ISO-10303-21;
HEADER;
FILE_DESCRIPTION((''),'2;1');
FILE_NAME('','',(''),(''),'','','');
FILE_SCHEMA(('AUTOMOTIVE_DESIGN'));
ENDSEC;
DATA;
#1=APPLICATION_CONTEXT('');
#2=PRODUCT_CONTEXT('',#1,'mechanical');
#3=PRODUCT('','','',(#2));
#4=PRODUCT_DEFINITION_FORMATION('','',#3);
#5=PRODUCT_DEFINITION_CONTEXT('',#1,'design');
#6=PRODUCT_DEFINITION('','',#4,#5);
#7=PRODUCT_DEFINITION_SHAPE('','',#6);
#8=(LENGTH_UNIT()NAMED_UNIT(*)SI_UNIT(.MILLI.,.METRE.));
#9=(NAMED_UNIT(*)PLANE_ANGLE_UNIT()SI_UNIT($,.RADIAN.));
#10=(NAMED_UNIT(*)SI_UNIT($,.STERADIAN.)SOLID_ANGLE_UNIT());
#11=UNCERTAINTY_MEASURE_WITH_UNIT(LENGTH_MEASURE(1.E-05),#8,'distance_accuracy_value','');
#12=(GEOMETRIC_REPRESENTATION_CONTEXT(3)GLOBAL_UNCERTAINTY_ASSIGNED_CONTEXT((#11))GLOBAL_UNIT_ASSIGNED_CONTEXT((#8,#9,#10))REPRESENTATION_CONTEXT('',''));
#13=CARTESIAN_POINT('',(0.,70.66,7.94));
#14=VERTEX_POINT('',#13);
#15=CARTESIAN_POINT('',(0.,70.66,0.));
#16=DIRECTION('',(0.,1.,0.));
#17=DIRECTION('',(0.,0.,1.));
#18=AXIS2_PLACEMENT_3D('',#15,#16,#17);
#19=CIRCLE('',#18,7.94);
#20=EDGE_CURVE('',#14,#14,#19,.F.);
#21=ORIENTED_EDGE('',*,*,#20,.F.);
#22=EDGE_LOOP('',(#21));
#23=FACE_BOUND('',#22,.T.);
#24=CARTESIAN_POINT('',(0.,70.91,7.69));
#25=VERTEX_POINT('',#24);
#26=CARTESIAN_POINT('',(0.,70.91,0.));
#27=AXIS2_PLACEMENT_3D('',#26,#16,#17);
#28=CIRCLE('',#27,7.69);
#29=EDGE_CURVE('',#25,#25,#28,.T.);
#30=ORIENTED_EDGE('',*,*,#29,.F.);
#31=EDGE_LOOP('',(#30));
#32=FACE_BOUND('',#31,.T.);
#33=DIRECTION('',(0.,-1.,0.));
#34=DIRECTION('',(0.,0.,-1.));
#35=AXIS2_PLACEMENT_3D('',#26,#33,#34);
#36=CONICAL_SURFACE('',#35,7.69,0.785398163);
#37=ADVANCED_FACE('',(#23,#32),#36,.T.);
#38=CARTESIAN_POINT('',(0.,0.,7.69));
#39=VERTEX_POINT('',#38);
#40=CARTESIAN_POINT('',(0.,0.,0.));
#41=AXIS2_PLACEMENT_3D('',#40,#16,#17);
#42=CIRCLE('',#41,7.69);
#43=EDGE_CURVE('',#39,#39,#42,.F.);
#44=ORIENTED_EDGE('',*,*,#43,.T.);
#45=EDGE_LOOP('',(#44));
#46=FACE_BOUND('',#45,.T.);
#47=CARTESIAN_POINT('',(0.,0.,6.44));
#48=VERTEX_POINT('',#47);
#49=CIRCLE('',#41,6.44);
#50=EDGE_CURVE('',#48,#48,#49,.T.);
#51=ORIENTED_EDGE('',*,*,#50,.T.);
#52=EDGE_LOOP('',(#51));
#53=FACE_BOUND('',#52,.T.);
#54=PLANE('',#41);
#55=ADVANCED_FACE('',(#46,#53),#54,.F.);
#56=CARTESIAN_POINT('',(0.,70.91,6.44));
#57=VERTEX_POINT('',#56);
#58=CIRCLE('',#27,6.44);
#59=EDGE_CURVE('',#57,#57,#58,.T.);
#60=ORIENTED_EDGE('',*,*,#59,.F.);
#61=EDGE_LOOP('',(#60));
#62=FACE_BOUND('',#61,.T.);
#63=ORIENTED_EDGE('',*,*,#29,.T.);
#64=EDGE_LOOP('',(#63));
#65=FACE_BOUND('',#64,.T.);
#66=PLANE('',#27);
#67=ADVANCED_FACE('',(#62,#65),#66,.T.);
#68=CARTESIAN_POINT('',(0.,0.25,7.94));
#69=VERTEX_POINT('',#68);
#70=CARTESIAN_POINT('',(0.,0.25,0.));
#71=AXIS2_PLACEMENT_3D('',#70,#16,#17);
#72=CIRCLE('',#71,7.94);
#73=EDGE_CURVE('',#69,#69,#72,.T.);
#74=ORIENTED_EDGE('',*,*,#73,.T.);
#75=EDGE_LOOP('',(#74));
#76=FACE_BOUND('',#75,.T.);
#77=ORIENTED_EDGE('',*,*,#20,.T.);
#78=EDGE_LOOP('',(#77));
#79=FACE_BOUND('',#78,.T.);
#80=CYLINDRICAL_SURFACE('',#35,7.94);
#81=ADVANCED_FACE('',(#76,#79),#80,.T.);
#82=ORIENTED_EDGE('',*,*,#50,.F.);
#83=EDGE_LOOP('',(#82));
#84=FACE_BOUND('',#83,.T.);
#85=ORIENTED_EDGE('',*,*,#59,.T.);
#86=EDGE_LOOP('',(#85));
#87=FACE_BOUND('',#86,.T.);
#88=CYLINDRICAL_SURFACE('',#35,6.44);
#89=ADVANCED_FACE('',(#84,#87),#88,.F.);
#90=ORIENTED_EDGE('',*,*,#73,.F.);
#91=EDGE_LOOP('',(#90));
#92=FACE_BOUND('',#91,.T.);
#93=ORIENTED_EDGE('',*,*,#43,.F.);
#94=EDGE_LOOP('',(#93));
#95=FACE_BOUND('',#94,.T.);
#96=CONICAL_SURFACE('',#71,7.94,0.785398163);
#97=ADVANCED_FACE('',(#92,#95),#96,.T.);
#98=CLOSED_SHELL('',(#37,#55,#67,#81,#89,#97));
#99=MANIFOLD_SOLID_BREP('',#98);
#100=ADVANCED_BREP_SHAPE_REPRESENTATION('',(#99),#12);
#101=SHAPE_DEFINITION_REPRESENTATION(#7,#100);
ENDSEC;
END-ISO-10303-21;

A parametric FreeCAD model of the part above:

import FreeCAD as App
import Part
import Sketcher
from FreeCAD import Vector


def edges_at(feature, points):
    """Names of the edges that pass closest to the given points."""
    edges = feature.Shape.Edges
    near = lambda p: min(range(len(edges)), key=lambda i: edges[i].distToShape(Part.Vertex(*p))[0])
    return sorted({f"Edge{near(p) + 1}" for p in points})

doc = App.newDocument("Part")
body = doc.addObject("PartDesign::Body", "Body")

sketch1 = doc.addObject("Sketcher::SketchObject", "Sketch")
body.addObject(sketch1)
sketch1.AttachmentSupport = (doc.XZ_Plane, [""])
sketch1.MapMode = "FlatFace"
sketch1.addGeometry([
    Part.Circle(Vector(0, 0, 0), Vector(0, 0, 1), 8),
    Part.Circle(Vector(0, 0, 0), Vector(0, 0, 1), 6),
], False)
sketch1.addConstraint([
    Sketcher.Constraint("Coincident", 0, 3, -1, 1),
    Sketcher.Constraint("Coincident", 1, 3, -1, 1),
    Sketcher.Constraint("Diameter", 0, 15.88),
    Sketcher.Constraint("Diameter", 1, 12.88),
])
pad1 = doc.addObject("PartDesign::Pad", "Pad")
body.addObject(pad1)
pad1.Profile = sketch1
pad1.Length = 70.91
pad1.Reversed = True
doc.recompute()

chamfer = doc.addObject("PartDesign::Chamfer", "Chamfer")
body.addObject(chamfer)
chamfer.Base = (pad1, edges_at(pad1, [(-7.94, 0, 0), (-7.94, 70.91, 0)]))
chamfer.Size = 0.25

doc.recompute()
